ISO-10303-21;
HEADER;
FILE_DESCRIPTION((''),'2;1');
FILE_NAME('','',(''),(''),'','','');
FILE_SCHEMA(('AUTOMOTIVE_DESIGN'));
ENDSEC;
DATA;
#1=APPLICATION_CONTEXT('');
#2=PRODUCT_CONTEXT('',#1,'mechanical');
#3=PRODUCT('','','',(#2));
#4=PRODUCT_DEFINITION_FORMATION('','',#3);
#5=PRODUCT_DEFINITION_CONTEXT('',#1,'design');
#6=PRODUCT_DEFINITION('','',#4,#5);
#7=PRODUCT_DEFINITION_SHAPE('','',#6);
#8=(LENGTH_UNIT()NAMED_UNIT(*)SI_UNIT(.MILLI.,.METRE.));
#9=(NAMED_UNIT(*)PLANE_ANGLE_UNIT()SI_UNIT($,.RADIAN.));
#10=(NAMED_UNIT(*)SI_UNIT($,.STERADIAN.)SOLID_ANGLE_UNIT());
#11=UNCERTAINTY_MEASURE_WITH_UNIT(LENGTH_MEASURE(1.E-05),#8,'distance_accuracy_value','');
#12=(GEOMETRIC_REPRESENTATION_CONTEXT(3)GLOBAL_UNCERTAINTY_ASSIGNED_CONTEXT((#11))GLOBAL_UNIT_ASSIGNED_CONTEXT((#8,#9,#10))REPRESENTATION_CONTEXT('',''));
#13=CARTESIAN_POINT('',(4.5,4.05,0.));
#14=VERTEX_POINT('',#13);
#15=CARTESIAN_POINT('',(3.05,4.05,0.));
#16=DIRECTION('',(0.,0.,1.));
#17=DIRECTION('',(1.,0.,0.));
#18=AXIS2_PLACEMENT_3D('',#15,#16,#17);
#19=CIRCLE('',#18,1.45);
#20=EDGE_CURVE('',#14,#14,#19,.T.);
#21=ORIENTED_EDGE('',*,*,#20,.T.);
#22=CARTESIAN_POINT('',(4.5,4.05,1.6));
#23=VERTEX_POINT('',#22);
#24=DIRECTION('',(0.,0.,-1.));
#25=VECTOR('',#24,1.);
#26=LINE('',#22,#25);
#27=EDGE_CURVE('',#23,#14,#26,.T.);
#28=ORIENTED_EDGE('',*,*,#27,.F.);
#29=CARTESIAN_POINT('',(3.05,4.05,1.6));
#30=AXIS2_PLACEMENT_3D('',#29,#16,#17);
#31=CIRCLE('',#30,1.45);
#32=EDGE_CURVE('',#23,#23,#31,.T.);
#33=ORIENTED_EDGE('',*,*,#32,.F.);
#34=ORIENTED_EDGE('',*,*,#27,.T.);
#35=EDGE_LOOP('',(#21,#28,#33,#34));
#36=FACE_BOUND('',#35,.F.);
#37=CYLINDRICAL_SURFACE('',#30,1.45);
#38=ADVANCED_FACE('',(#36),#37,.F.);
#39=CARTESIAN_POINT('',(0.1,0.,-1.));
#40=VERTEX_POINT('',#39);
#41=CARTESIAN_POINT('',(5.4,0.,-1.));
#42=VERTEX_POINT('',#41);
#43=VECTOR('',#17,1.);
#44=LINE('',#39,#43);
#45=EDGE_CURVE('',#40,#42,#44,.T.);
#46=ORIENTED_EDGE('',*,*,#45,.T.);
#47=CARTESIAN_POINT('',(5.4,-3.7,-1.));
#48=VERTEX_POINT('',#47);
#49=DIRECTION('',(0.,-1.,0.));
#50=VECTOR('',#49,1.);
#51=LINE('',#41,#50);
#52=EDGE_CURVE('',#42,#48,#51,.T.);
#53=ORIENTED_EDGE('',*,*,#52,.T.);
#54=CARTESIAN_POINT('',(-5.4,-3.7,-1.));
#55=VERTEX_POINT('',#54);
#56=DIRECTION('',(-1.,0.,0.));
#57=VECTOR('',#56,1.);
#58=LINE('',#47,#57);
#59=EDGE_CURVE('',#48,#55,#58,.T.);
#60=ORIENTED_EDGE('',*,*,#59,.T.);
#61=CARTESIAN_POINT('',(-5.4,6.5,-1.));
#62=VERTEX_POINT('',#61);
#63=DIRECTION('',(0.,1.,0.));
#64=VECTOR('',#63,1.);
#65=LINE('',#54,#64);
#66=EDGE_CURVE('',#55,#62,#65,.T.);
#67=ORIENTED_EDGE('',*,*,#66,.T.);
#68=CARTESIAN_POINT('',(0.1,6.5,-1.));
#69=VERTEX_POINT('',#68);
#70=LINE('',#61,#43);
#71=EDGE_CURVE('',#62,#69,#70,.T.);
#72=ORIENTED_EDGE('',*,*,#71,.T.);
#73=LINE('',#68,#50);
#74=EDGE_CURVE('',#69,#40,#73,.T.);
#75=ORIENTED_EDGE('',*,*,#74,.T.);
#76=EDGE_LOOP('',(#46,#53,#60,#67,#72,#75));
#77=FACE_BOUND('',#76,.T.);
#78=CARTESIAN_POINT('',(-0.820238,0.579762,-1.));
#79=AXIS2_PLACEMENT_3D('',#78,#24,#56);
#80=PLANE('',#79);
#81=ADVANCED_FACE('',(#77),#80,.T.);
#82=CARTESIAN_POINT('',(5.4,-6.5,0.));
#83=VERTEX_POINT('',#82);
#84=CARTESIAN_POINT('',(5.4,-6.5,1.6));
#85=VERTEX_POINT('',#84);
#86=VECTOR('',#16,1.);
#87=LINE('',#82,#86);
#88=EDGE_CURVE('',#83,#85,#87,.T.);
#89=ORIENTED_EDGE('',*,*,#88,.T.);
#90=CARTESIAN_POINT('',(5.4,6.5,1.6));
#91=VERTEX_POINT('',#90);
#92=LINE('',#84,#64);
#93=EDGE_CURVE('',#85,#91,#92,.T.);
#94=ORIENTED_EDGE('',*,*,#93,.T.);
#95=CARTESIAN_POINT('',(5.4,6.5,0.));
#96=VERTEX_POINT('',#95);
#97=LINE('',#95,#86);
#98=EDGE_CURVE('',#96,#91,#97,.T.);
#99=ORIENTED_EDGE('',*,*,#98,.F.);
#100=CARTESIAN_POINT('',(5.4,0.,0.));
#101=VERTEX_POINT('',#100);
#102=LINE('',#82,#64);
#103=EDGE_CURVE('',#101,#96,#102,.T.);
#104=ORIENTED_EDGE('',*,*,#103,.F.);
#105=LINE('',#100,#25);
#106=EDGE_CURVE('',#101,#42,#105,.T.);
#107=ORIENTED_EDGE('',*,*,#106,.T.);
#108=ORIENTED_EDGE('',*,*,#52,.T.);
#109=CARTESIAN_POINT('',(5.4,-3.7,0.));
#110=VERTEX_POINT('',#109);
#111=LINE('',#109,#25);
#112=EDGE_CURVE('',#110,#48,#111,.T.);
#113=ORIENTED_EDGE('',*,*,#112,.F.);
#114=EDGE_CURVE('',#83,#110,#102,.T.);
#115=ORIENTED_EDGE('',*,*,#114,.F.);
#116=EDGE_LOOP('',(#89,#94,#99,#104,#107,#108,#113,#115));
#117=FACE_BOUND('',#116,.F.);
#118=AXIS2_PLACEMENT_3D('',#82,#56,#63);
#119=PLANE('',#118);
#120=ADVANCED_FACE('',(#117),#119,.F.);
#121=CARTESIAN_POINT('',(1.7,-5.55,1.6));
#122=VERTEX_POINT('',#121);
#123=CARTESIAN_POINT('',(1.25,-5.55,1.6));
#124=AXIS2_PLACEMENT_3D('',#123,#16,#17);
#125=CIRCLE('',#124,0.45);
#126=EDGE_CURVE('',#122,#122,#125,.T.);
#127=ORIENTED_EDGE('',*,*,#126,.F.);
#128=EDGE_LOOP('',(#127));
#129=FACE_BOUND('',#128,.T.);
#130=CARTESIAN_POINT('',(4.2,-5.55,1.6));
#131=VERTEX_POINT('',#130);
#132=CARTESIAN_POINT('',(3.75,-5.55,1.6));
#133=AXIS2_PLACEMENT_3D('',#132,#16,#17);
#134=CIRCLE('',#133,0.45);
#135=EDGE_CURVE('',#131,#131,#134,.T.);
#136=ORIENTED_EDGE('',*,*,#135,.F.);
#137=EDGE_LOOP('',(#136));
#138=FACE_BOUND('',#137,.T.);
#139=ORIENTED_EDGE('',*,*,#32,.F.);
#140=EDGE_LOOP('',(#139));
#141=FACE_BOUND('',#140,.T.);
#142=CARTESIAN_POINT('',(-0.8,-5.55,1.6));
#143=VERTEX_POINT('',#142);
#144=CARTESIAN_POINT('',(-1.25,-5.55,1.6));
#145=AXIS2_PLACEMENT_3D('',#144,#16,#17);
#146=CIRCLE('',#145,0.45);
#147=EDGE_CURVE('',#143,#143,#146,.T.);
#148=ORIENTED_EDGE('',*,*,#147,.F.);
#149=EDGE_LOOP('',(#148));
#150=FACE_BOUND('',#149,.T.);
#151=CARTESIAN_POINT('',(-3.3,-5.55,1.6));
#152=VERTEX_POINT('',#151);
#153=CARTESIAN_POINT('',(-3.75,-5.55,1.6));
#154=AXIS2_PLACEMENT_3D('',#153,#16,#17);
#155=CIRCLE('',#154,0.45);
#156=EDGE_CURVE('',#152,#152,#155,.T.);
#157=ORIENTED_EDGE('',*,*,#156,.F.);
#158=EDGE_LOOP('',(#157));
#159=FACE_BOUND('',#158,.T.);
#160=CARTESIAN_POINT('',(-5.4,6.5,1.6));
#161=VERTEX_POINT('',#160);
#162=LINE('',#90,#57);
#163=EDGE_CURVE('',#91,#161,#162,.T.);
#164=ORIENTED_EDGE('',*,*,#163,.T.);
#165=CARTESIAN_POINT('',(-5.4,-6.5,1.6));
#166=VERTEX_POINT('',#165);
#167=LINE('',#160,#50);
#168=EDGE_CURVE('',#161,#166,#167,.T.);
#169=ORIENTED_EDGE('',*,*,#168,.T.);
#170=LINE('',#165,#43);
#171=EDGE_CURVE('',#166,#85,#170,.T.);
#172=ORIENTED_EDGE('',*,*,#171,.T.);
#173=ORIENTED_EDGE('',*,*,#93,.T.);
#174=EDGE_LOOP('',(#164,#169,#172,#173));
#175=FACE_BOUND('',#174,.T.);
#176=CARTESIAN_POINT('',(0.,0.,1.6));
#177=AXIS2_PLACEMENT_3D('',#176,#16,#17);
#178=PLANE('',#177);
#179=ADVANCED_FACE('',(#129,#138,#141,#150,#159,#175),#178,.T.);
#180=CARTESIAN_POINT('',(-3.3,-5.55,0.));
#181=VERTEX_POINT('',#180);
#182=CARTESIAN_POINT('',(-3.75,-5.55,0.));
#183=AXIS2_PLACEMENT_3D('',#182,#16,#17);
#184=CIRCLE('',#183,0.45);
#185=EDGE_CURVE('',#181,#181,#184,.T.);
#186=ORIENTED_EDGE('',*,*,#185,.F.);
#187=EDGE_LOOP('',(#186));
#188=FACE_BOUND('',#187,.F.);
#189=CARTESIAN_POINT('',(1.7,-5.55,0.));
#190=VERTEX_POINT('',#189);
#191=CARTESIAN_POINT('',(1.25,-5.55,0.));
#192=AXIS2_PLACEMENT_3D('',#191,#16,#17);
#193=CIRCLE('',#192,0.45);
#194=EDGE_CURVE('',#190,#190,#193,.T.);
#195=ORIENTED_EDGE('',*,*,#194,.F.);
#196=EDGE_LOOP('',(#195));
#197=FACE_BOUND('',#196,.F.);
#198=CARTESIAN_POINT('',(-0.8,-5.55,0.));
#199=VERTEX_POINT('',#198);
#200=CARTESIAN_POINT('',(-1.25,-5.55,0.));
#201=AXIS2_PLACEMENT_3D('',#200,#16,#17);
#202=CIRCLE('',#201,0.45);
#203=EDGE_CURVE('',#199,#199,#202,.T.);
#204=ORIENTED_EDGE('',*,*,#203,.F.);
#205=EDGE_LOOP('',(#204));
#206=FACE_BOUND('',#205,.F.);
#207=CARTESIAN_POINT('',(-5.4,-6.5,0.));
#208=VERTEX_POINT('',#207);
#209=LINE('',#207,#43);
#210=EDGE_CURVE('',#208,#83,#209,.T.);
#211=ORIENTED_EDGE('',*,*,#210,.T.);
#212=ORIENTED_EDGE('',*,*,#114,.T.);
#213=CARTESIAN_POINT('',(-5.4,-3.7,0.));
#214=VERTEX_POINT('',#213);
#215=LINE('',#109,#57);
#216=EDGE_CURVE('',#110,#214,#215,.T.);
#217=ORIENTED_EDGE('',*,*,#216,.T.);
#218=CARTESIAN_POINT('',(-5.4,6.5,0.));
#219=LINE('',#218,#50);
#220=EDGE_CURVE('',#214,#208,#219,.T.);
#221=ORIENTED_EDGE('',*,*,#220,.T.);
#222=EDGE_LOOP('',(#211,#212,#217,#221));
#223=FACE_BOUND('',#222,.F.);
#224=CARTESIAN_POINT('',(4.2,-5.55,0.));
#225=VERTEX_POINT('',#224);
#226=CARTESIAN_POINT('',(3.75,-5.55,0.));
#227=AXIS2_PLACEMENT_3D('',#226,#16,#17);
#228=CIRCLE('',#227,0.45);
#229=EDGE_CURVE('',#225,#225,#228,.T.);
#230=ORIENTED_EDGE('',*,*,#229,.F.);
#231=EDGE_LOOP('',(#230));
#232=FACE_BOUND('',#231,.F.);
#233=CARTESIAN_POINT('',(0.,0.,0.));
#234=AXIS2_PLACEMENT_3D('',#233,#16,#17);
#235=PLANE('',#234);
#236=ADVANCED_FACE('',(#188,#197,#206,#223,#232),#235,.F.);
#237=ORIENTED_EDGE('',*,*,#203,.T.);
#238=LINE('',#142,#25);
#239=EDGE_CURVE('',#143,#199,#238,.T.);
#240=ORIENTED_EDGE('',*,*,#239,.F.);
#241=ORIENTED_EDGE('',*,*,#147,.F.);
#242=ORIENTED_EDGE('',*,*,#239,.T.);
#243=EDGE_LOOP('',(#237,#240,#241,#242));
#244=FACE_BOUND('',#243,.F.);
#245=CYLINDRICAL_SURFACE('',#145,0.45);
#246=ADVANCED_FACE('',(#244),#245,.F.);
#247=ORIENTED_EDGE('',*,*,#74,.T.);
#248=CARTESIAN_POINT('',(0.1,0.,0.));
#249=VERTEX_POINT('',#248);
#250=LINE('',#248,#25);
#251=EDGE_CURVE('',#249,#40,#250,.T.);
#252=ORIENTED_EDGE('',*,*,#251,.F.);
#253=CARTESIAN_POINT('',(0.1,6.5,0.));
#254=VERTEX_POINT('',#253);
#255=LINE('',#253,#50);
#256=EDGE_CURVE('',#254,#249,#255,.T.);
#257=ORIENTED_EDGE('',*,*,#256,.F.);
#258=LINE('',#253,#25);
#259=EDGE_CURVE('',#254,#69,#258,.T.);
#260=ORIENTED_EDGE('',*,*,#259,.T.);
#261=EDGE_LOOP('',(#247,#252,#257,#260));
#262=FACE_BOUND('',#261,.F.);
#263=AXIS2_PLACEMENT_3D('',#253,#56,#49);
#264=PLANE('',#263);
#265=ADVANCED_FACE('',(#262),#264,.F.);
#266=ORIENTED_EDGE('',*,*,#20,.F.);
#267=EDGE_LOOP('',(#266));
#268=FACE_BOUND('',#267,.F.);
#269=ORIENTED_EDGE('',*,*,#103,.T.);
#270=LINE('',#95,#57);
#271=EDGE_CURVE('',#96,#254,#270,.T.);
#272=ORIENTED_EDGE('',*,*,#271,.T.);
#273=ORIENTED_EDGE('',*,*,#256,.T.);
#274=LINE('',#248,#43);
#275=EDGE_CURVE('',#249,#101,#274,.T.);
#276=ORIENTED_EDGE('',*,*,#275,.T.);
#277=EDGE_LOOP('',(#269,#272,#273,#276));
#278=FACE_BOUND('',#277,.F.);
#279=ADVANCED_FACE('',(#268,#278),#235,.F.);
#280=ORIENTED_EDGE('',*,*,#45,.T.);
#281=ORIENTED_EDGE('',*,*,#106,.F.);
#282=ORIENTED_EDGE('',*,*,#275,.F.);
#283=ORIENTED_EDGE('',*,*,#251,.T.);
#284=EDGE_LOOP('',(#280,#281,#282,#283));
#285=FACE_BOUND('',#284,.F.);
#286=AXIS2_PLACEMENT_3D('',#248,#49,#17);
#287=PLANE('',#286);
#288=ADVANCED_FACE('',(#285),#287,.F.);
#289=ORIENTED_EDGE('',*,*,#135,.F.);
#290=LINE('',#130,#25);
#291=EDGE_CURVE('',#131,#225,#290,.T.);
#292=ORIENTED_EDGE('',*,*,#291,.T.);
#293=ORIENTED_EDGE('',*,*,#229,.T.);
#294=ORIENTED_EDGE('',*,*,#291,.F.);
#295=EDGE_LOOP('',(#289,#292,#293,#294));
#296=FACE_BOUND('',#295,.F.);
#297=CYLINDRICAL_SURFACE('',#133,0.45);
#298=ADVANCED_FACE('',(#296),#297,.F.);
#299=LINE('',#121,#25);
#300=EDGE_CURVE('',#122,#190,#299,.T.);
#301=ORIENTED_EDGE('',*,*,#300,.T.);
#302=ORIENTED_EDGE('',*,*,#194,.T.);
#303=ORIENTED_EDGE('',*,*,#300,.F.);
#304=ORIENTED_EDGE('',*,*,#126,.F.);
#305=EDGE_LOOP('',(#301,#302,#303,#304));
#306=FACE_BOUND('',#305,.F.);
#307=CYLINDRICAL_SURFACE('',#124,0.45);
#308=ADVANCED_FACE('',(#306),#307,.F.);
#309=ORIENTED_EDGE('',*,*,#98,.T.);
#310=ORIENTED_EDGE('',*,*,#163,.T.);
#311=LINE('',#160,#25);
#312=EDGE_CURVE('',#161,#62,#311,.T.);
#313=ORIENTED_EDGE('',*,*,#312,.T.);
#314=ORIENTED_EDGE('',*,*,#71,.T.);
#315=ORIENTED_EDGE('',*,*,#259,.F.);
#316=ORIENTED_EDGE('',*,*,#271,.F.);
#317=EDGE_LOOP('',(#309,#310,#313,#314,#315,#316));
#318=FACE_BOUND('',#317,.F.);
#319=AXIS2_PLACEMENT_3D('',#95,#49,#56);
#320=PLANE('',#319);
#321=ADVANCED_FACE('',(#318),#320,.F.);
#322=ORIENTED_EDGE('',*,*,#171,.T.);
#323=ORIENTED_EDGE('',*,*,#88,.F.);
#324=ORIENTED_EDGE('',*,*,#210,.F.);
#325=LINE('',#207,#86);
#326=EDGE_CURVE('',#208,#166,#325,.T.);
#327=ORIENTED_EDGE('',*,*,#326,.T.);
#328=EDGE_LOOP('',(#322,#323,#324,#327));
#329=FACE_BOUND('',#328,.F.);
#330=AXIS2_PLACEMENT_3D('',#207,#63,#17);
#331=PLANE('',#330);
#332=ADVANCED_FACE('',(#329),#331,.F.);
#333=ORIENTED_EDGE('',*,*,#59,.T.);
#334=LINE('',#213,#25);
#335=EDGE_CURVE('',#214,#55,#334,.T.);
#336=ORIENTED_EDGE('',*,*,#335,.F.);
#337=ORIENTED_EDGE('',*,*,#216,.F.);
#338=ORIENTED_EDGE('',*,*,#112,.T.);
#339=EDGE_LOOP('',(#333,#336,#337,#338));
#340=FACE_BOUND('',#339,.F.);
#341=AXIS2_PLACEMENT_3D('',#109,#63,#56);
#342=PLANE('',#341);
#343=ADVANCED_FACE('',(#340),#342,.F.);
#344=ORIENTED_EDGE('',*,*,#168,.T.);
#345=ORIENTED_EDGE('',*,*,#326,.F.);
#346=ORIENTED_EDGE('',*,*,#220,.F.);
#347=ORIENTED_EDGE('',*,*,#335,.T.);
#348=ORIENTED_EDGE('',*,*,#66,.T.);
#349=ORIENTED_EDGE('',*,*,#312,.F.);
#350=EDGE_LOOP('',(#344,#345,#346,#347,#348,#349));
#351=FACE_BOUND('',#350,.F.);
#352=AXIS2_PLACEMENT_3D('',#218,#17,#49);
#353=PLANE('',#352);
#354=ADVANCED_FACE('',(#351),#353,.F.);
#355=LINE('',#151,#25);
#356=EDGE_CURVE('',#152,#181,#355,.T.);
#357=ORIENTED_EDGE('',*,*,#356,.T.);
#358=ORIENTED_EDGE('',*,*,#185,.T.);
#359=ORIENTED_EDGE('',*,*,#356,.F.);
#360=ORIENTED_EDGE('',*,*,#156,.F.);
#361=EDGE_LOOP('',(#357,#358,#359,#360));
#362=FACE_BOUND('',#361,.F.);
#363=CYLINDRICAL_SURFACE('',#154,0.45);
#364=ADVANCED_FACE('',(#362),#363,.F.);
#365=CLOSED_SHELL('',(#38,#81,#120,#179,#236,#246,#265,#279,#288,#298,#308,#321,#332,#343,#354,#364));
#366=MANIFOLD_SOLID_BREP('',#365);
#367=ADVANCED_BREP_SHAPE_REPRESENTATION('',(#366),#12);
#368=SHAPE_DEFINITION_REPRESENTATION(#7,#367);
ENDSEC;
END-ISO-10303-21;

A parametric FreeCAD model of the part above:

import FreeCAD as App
import Part
import Sketcher

doc = App.newDocument("Part")
params = doc.addObject("Spreadsheet::Sheet", "Params")
for row, (alias, value) in enumerate([
    ("sketch1_height", "13 mm"),
    ("pad1_length", "1.6 mm"),
    ("sketch2_diameter", "2.9 mm"),
    ("sketch3_diameter", "0.9 mm"),
    ("sketch4_height", "6.5 mm"),
    ("sketch4_height2", "3.7 mm"),
    ("pad2_length", "1 mm"),
], start=1):
    params.set(f"A{row}", alias)
    params.set(f"B{row}", "=" + value)
    params.setAlias(f"B{row}", alias)

body = doc.addObject("PartDesign::Body", "Body")

# Sketch on XY plane
sketch1 = body.newObject("Sketcher::SketchObject", "Sketch")
sketch1.AttachmentSupport = (doc.getObject("XY_Plane"), [""])
sketch1.MapMode = "FlatFace"
sketch1.addGeometry(Part.LineSegment(App.Vector(-5, 6, 0), App.Vector(-5, -6, 0)), False)
sketch1.addGeometry(Part.LineSegment(App.Vector(-5, -6, 0), App.Vector(5, -6, 0)), False)
sketch1.addGeometry(Part.LineSegment(App.Vector(5, -6, 0), App.Vector(5, 6, 0)), False)
sketch1.addGeometry(Part.LineSegment(App.Vector(5, 6, 0), App.Vector(-5, 6, 0)), False)
sketch1.addConstraint(Sketcher.Constraint("Coincident", 0, 2, 1, 1))
sketch1.addConstraint(Sketcher.Constraint("Coincident", 1, 2, 2, 1))
sketch1.addConstraint(Sketcher.Constraint("Coincident", 2, 2, 3, 1))
sketch1.addConstraint(Sketcher.Constraint("Coincident", 3, 2, 0, 1))
sketch1.addConstraint(Sketcher.Constraint("Vertical", 0))
sketch1.addConstraint(Sketcher.Constraint("Horizontal", 1))
sketch1.addConstraint(Sketcher.Constraint("Vertical", 2))
sketch1.addConstraint(Sketcher.Constraint("Horizontal", 3))
sketch1.addConstraint(Sketcher.Constraint("Symmetric", 0, 2, 2, 2, -1, 1))
sketch1.addConstraint(Sketcher.Constraint("DistanceX", 0, 2, -1, 1, 5.4))
sketch1.addConstraint(Sketcher.Constraint("DistanceY", 0, 2, 0, 1, 13.0))
sketch1.setExpression("Constraints[10]", "Params.sketch1_height")
pad1 = body.newObject("PartDesign::Pad", "Pad")
pad1.Profile = sketch1
pad1.setExpression("Length", "Params.pad1_length")

# Sketch on XY plane
sketch2 = body.newObject("Sketcher::SketchObject", "Sketch001")
sketch2.AttachmentSupport = (doc.getObject("XY_Plane"), [""])
sketch2.MapMode = "FlatFace"
sketch2.AttachmentOffset = App.Placement(App.Vector(0, 0, 1.6), App.Rotation())
sketch2.addGeometry(Part.Circle(App.Vector(3, 4, 0), App.Vector(0, 0, 1), 1.4), False)
sketch2.addConstraint(Sketcher.Constraint("Diameter", 0, 2.9))
sketch2.addConstraint(Sketcher.Constraint("DistanceX", -1, 1, 0, 3, 3.05))
sketch2.addConstraint(Sketcher.Constraint("DistanceY", -1, 1, 0, 3, 4.05))
sketch2.setExpression("Constraints[0]", "Params.sketch2_diameter")
pocket1 = body.newObject("PartDesign::Pocket", "Pocket")
pocket1.Profile = sketch2
pocket1.Type = "ThroughAll"

# Sketch on XY plane
sketch3 = body.newObject("Sketcher::SketchObject", "Sketch002")
sketch3.AttachmentSupport = (doc.getObject("XY_Plane"), [""])
sketch3.MapMode = "FlatFace"
sketch3.AttachmentOffset = App.Placement(App.Vector(0, 0, 1.6), App.Rotation())
sketch3.addGeometry(Part.Circle(App.Vector(-3.75, -5.55, 0), App.Vector(0, 0, 1), 0.45), False)
sketch3.addGeometry(Part.Circle(App.Vector(-1.25, -5.55, 0), App.Vector(0, 0, 1), 0.45), False)
sketch3.addGeometry(Part.Circle(App.Vector(1.25, -5.55, 0), App.Vector(0, 0, 1), 0.45), False)
sketch3.addGeometry(Part.Circle(App.Vector(3.75, -5.55, 0), App.Vector(0, 0, 1), 0.45), False)
sketch3.addConstraint(Sketcher.Constraint("Equal", 0, 1))
sketch3.addConstraint(Sketcher.Constraint("Equal", 1, 2))
sketch3.addConstraint(Sketcher.Constraint("Equal", 2, 3))
sketch3.addConstraint(Sketcher.Constraint("Symmetric", 1, 3, 2, 3, -2))
sketch3.addConstraint(Sketcher.Constraint("Symmetric", 0, 3, 3, 3, -2))
sketch3.addConstraint(Sketcher.Constraint("Horizontal", 0, 3, 1, 3))
sketch3.addConstraint(Sketcher.Constraint("Diameter", 0, 0.9))
sketch3.addConstraint(Sketcher.Constraint("DistanceX", 0, 3, 2, 3, 5.0))
sketch3.addConstraint(Sketcher.Constraint("DistanceX", 0, 3, 1, 3, 2.5))
sketch3.addConstraint(Sketcher.Constraint("DistanceY", 0, 3, -1, 1, 5.55))
sketch3.setExpression("Constraints[6]", "Params.sketch3_diameter")
pocket2 = body.newObject("PartDesign::Pocket", "Pocket001")
pocket2.Profile = sketch3
pocket2.Type = "ThroughAll"

# Sketch on XY plane
sketch4 = body.newObject("Sketcher::SketchObject", "Sketch003")
sketch4.AttachmentSupport = (doc.getObject("XY_Plane"), [""])
sketch4.MapMode = "FlatFace"
sketch4.addGeometry(Part.LineSegment(App.Vector(-5.4, 6.5, 0), App.Vector(0.1, 6.5, 0)), False)
sketch4.addGeometry(Part.LineSegment(App.Vector(0.1, 6.5, 0), App.Vector(0.1, 0, 0)), False)
sketch4.addGeometry(Part.LineSegment(App.Vector(0.1, 0, 0), App.Vector(5.4, 0, 0)), False)
sketch4.addGeometry(Part.LineSegment(App.Vector(5.4, 0, 0), App.Vector(5.4, -3.7, 0)), False)
sketch4.addGeometry(Part.LineSegment(App.Vector(5.4, -3.7, 0), App.Vector(-5.4, -3.7, 0)), False)
sketch4.addGeometry(Part.LineSegment(App.Vector(-5.4, -3.7, 0), App.Vector(-5.4, 6.5, 0)), False)
sketch4.addConstraint(Sketcher.Constraint("Coincident", 0, 2, 1, 1))
sketch4.addConstraint(Sketcher.Constraint("Coincident", 1, 2, 2, 1))
sketch4.addConstraint(Sketcher.Constraint("Coincident", 2, 2, 3, 1))
sketch4.addConstraint(Sketcher.Constraint("Coincident", 3, 2, 4, 1))
sketch4.addConstraint(Sketcher.Constraint("Coincident", 4, 2, 5, 1))
sketch4.addConstraint(Sketcher.Constraint("Coincident", 5, 2, 0, 1))
sketch4.addConstraint(Sketcher.Constraint("Horizontal", 0))
sketch4.addConstraint(Sketcher.Constraint("Vertical", 1))
sketch4.addConstraint(Sketcher.Constraint("Horizontal", 2))
sketch4.addConstraint(Sketcher.Constraint("Vertical", 3))
sketch4.addConstraint(Sketcher.Constraint("Horizontal", 4))
sketch4.addConstraint(Sketcher.Constraint("Vertical", 5))
sketch4.addConstraint(Sketcher.Constraint("PointOnObject", 1, 2, -1))
sketch4.addConstraint(Sketcher.Constraint("DistanceX", -1, 1, 0, 2, 0.1))
sketch4.addConstraint(Sketcher.Constraint("DistanceX", -1, 1, 2, 2, 5.4))
sketch4.addConstraint(Sketcher.Constraint("DistanceX", 4, 2, -1, 1, 5.4))
sketch4.addConstraint(Sketcher.Constraint("DistanceY", 1, 2, 1, 1, 6.5))
sketch4.addConstraint(Sketcher.Constraint("DistanceY", 3, 2, 3, 1, 3.7))
sketch4.setExpression("Constraints[16]", "Params.sketch4_height")
sketch4.setExpression("Constraints[17]", "Params.sketch4_height2")
pad2 = body.newObject("PartDesign::Pad", "Pad001")
pad2.Profile = sketch4
pad2.setExpression("Length", "Params.pad2_length")
pad2.Reversed = True

doc.recompute()
